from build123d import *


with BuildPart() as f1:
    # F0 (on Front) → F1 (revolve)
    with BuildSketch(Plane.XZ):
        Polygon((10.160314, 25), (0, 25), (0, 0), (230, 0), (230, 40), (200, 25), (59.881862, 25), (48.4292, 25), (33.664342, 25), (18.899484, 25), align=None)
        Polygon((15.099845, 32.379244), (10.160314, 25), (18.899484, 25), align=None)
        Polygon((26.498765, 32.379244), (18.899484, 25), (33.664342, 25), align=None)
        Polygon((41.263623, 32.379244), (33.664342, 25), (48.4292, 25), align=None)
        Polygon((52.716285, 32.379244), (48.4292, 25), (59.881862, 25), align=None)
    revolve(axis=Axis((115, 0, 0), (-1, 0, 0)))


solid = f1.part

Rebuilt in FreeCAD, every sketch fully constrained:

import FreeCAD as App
import Part
import Sketcher
Q = App.Units.Quantity


def add_polygon(sketch, points):
    """Adds a closed chain of lines whose ends are joined by coincident constraints."""
    first, n = sketch.GeometryCount, len(points)
    for a, b in zip(points, points[1:] + points[:1]):
        sketch.addGeometry(Part.LineSegment(App.Vector(*a, 0), App.Vector(*b, 0)), False)
    for i in range(n):
        sketch.addConstraint(Sketcher.Constraint("Coincident", first + i, 2, first + (i + 1) % n, 1))

doc = App.newDocument("Part")
params = doc.addObject("Spreadsheet::Sheet", "Params")
for row, (alias, value) in enumerate([
    ("sketch1_width", "230 mm"),
    ("sketch1_height", "25 mm"),
    ("sketch1_height2", "40 mm"),
    ("revolution_angle", "360 deg"),
], start=1):
    params.set(f"A{row}", alias)
    params.set(f"B{row}", "=" + value)
    params.setAlias(f"B{row}", alias)

body = doc.addObject("PartDesign::Body", "Body")

# Sketch on XZ plane
sketch1 = body.newObject("Sketcher::SketchObject", "Sketch")
sketch1.AttachmentSupport = (doc.getObject("XZ_Plane"), [""])
sketch1.MapMode = "FlatFace"
add_polygon(sketch1, [(0, 25), (0, 0), (230, 0), (230, 40), (200, 25), (60, 25), (53, 32), (48, 25), (41, 32), (34, 25), (26, 32), (19, 25), (15, 32), (10, 25)])  # lines 0-13
sketch1.addConstraint(Sketcher.Constraint("Vertical", 0))
sketch1.addConstraint(Sketcher.Constraint("Horizontal", 1))
sketch1.addConstraint(Sketcher.Constraint("Vertical", 2))
sketch1.addConstraint(Sketcher.Constraint("Horizontal", 4))
sketch1.addConstraint(Sketcher.Constraint("Horizontal", 13))
sketch1.addConstraint(Sketcher.Constraint("Coincident", 0, 2, -1, 1))
sketch1.addConstraint(Sketcher.Constraint("Parallel", 5, 7))
sketch1.addConstraint(Sketcher.Constraint("Perpendicular", 7, 8))
sketch1.addConstraint(Sketcher.Constraint("Perpendicular", 8, 9))
sketch1.addConstraint(Sketcher.Constraint("Perpendicular", 9, 10))
sketch1.addConstraint(Sketcher.Constraint("Horizontal", 4, 2, 6, 2))
sketch1.addConstraint(Sketcher.Constraint("Horizontal", 5, 2, 7, 2))
sketch1.addConstraint(Sketcher.Constraint("Horizontal", 6, 2, 8, 2))
sketch1.addConstraint(Sketcher.Constraint("Horizontal", 7, 2, 9, 2))
sketch1.addConstraint(Sketcher.Constraint("Horizontal", 8, 2, 10, 2))
sketch1.addConstraint(Sketcher.Constraint("Horizontal", 9, 2, 11, 2))
sketch1.addConstraint(Sketcher.Constraint("Horizontal", 10, 2, 12, 2))
sketch1.addConstraint(Sketcher.Constraint("DistanceX", 1, 1, 1, 2, Q("230 mm")))
sketch1.addConstraint(Sketcher.Constraint("DistanceY", 0, 2, 0, 1, Q("25 mm")))
sketch1.addConstraint(Sketcher.Constraint("DistanceY", 2, 1, 2, 2, Q("40 mm")))
sketch1.addConstraint(Sketcher.Constraint("DistanceX", -1, 1, 3, 2, Q("200 mm")))
sketch1.addConstraint(Sketcher.Constraint("DistanceX", -1, 1, 6, 2, Q("48.4292 mm")))
sketch1.addConstraint(Sketcher.Constraint("Distance", 5, Q("10.285851 mm")))
sketch1.addConstraint(Sketcher.Constraint("Distance", 8, Q("10.592559 mm")))
sketch1.addConstraint(Sketcher.Constraint("Distance", 11, Q("8.30003 mm")))
sketch1.addConstraint(Sketcher.Constraint("DistanceX", 4, 2, 4, 1, Q("140.118138 mm")))
sketch1.addConstraint(Sketcher.Constraint("DistanceX", 13, 2, 13, 1, Q("10.160314 mm")))
sketch1.setExpression("Constraints[31]", "Params.sketch1_width")
sketch1.setExpression("Constraints[32]", "Params.sketch1_height")
sketch1.setExpression("Constraints[33]", "Params.sketch1_height2")
revolution = body.newObject("PartDesign::Revolution", "Revolution")
revolution.Profile = sketch1
revolution.ReferenceAxis = (sketch1, ["H_Axis"])
revolution.setExpression("Angle", "Params.revolution_angle")

doc.recompute()
